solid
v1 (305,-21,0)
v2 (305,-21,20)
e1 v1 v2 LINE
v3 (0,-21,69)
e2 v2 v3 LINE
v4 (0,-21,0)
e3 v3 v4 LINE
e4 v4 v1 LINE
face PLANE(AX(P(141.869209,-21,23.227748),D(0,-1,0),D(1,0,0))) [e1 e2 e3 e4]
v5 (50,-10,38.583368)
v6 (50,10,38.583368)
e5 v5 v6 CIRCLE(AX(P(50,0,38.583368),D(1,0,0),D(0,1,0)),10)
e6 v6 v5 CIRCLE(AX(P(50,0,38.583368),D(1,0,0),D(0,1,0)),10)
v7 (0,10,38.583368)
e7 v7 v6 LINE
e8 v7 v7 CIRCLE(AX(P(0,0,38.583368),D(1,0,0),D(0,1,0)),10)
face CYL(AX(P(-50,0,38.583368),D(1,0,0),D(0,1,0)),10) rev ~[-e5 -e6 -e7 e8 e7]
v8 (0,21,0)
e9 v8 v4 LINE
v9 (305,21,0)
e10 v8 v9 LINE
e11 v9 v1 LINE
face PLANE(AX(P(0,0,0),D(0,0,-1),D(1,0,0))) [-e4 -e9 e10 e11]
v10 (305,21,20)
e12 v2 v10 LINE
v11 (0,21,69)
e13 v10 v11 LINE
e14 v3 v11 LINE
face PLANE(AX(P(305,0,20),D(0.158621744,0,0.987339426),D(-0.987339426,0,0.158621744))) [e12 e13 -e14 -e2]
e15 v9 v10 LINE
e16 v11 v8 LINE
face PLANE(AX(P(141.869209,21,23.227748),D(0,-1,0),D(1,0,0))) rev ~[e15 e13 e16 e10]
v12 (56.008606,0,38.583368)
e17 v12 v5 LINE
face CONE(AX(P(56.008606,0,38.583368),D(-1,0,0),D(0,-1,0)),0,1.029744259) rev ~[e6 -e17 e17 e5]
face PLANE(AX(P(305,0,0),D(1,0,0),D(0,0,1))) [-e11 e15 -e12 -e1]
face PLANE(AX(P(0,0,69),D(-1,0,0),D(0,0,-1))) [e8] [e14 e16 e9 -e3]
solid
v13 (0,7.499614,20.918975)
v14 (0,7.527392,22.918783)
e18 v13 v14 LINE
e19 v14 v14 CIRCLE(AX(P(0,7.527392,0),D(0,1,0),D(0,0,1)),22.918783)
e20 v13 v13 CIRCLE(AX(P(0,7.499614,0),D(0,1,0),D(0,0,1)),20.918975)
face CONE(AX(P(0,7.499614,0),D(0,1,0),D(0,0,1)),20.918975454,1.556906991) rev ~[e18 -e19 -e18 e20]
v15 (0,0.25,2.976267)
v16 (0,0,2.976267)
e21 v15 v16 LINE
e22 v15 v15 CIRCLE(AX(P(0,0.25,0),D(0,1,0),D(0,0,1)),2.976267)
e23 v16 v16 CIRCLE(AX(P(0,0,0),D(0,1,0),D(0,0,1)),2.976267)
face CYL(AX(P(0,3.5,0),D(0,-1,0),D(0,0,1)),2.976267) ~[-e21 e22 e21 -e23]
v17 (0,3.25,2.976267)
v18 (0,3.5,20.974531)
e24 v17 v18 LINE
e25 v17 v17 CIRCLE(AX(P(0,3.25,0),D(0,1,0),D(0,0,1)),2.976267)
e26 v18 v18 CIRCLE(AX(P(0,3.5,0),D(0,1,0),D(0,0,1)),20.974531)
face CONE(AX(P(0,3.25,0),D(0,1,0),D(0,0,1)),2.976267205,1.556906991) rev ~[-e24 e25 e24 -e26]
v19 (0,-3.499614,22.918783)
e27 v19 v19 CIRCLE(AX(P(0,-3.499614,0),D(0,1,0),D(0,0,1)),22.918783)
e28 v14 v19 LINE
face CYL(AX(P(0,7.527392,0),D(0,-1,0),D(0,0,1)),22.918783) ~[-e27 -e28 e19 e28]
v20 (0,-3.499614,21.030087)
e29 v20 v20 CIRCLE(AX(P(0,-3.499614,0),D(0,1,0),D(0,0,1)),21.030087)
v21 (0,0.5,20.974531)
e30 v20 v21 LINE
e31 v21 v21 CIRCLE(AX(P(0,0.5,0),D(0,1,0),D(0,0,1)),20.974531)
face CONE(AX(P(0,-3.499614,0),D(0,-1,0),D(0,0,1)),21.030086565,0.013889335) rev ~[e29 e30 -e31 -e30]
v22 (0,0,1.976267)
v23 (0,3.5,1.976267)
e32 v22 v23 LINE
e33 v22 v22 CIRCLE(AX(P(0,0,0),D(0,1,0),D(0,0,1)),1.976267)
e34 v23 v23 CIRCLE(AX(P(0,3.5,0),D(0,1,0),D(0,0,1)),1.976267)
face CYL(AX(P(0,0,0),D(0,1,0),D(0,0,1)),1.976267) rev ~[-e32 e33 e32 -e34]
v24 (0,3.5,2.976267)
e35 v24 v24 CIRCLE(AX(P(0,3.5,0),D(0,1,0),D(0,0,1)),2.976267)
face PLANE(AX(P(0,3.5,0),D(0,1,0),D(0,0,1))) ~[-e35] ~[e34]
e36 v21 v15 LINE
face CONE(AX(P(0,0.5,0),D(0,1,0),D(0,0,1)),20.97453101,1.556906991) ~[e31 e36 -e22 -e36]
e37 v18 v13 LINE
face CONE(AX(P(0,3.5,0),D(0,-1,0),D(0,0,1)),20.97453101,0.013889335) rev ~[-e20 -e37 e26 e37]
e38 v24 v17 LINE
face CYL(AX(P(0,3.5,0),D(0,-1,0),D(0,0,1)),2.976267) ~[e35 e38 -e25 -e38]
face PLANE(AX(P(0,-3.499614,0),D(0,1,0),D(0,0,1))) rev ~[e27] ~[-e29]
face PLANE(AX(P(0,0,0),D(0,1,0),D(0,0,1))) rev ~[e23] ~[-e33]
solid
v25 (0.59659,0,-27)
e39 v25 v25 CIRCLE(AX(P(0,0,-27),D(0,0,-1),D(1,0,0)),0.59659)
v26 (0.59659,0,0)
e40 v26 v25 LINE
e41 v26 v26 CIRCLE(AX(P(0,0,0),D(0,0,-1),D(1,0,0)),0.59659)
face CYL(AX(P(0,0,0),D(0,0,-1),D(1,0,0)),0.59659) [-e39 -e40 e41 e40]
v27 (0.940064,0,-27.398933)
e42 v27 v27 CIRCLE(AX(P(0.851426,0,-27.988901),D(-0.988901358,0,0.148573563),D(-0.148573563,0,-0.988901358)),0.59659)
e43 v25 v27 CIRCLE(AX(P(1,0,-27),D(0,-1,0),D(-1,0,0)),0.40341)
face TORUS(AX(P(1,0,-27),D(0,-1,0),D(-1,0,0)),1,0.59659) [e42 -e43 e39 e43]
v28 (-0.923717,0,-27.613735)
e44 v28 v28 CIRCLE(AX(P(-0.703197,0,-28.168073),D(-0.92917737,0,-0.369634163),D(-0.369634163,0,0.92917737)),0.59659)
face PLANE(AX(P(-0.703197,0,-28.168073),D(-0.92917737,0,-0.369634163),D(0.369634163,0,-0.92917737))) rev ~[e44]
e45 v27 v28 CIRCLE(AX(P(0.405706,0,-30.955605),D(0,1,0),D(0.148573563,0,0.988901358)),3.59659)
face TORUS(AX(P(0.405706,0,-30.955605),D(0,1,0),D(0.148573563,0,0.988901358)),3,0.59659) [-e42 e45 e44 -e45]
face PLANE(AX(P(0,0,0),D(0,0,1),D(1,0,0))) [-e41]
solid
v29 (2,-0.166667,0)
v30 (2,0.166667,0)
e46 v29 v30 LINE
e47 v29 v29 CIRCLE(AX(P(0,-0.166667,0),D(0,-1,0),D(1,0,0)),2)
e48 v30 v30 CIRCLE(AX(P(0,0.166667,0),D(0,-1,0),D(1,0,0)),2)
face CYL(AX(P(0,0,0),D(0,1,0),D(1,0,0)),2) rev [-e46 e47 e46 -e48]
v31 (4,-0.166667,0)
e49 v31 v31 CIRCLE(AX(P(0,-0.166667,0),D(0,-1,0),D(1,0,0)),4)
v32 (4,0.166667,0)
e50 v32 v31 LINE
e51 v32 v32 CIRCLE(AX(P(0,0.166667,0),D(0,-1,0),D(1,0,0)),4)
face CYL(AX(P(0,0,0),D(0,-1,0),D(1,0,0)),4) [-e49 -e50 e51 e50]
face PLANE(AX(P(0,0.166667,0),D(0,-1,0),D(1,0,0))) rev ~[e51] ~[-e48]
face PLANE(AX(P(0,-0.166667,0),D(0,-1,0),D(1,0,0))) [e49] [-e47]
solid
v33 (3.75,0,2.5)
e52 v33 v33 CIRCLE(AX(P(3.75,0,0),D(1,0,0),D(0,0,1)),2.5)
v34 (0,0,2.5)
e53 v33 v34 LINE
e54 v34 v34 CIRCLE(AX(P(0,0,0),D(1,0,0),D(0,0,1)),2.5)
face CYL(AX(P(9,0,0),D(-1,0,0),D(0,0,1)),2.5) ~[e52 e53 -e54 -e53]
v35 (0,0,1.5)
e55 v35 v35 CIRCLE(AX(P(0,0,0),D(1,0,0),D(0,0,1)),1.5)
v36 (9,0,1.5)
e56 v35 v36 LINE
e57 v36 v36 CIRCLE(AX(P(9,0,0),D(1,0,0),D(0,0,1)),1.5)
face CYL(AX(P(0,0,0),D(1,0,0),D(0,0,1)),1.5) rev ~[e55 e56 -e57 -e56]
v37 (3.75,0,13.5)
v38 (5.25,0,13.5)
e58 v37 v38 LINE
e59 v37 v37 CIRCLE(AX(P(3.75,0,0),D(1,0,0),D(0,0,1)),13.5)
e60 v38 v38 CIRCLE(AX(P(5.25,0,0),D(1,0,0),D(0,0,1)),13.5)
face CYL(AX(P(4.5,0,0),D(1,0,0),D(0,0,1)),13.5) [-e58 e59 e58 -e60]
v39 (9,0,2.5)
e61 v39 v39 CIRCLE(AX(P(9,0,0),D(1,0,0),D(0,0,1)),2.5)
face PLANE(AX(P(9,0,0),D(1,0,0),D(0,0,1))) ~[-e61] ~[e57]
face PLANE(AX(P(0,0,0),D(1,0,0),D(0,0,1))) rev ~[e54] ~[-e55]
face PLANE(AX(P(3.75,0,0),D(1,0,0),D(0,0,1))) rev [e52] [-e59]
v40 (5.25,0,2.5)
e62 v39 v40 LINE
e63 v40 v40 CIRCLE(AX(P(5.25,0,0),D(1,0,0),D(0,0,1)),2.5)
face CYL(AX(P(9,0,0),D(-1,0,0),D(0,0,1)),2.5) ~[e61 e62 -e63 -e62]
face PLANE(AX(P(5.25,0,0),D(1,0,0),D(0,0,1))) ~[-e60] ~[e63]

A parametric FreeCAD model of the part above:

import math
import FreeCAD as App
import Part
import Sketcher

V = App.Vector
Q = App.Units.Quantity

doc = App.newDocument("Part")
body = doc.addObject("PartDesign::Body", "Body")

# Sketch on XZ plane
sketch1 = body.newObject("Sketcher::SketchObject", "Sketch")
sketch1.AttachmentSupport = (doc.getObject("XZ_Plane"), [""])
sketch1.MapMode = "FlatFace"
sketch1.addGeometry(Part.LineSegment(V(0, 69, 0), V(0, 0, 0)), False)
sketch1.addGeometry(Part.LineSegment(V(0, 0, 0), V(305, 0, 0)), False)
sketch1.addGeometry(Part.LineSegment(V(305, 0, 0), V(305, 20, 0)), False)
sketch1.addGeometry(Part.LineSegment(V(305, 20, 0), V(0, 69, 0)), False)
sketch1.addConstraint(Sketcher.Constraint("Coincident", 0, 2, 1, 1))
sketch1.addConstraint(Sketcher.Constraint("Coincident", 1, 2, 2, 1))
sketch1.addConstraint(Sketcher.Constraint("Coincident", 2, 2, 3, 1))
sketch1.addConstraint(Sketcher.Constraint("Coincident", 3, 2, 0, 1))
sketch1.addConstraint(Sketcher.Constraint("Vertical", 0))
sketch1.addConstraint(Sketcher.Constraint("Horizontal", 1))
sketch1.addConstraint(Sketcher.Constraint("Vertical", 2))
sketch1.addConstraint(Sketcher.Constraint("Coincident", 0, 2, -1, 1))
sketch1.addConstraint(Sketcher.Constraint("DistanceX", 1, 1, 1, 2, Q("305 mm")))
sketch1.addConstraint(Sketcher.Constraint("DistanceY", 0, 2, 0, 1, Q("69 mm")))
sketch1.addConstraint(Sketcher.Constraint("DistanceY", 2, 1, 2, 2, Q("20 mm")))
pad1 = body.newObject("PartDesign::Pad", "Pad")
pad1.Profile = sketch1
pad1.Length = 42
pad1.Midplane = True

# Sketch on YZ plane
sketch2 = body.newObject("Sketcher::SketchObject", "Sketch001")
sketch2.AttachmentSupport = (doc.getObject("YZ_Plane"), [""])
sketch2.MapMode = "FlatFace"
sketch2.addGeometry(Part.Circle(V(0, 38.583368, 0), V(0, 0, 1), 10), False)
sketch2.addConstraint(Sketcher.Constraint("PointOnObject", 0, 3, -2))
sketch2.addConstraint(Sketcher.Constraint("Diameter", 0, Q("20 mm")))
sketch2.addConstraint(Sketcher.Constraint("DistanceY", -1, 1, 0, 3, Q("38.583368 mm")))
doc.recompute()
hole = body.newObject("PartDesign::Hole", "Hole")
hole.Profile = sketch2
hole.ThreadType = "None"
hole.Diameter = 20
hole.DepthType = "Dimension"
hole.Depth = 50
hole.DrillPoint = "Angled"
hole.DrillPointAngle = 118
hole.Reversed = True
body2 = doc.addObject("PartDesign::Body", "Body001")

# Sketch on XZ plane
sketch3 = body2.newObject("Sketcher::SketchObject", "Sketch002")
sketch3.AttachmentSupport = (doc.getObject("XZ_Plane001"), [""])
sketch3.MapMode = "FlatFace"
sketch3.addGeometry(Part.Circle(V(0, 0, 0), V(0, 0, 1), 4), False)
sketch3.addGeometry(Part.Circle(V(0, 0, 0), V(0, 0, 1), 2), False)
sketch3.addConstraint(Sketcher.Constraint("Coincident", 0, 3, -1, 1))
sketch3.addConstraint(Sketcher.Constraint("Coincident", 1, 3, -1, 1))
sketch3.addConstraint(Sketcher.Constraint("Diameter", 0, Q("8 mm")))
sketch3.addConstraint(Sketcher.Constraint("Diameter", 1, Q("4 mm")))
pad2 = body2.newObject("PartDesign::Pad", "Pad001")
pad2.Profile = sketch3
pad2.Length = 0.333333
pad2.Midplane = True
body3 = doc.addObject("PartDesign::Body", "Body002")

# Sketch on YZ plane
sketch4 = body3.newObject("Sketcher::SketchObject", "Sketch003")
sketch4.AttachmentSupport = (doc.getObject("YZ_Plane002"), [""])
sketch4.MapMode = "FlatFace"
sketch4.addGeometry(Part.LineSegment(V(0, 2.976267, 0), V(0, 1.976267, 0)), False)
sketch4.addGeometry(Part.LineSegment(V(0, 1.976267, 0), V(3.5, 1.976267, 0)), False)
sketch4.addGeometry(Part.LineSegment(V(3.5, 1.976267, 0), V(3.5, 2.976267, 0)), False)
sketch4.addGeometry(Part.LineSegment(V(3.5, 2.976267, 0), V(3.25, 2.976267, 0)), False)
sketch4.addGeometry(Part.LineSegment(V(3.25, 2.976267, 0), V(3.5, 20.974531, 0)), False)
sketch4.addGeometry(Part.LineSegment(V(3.5, 20.974531, 0), V(7.499614, 20.918975, 0)), False)
sketch4.addGeometry(Part.LineSegment(V(7.499614, 20.918975, 0), V(7.527392, 22.918783, 0)), False)
sketch4.addGeometry(Part.LineSegment(V(7.527392, 22.918783, 0), V(-3.499614, 22.918783, 0)), False)
sketch4.addGeometry(Part.LineSegment(V(-3.499614, 22.918783, 0), V(-3.499614, 21.030087, 0)), False)
sketch4.addGeometry(Part.LineSegment(V(-3.499614, 21.030087, 0), V(0.5, 20.974531, 0)), False)
sketch4.addGeometry(Part.LineSegment(V(0.5, 20.974531, 0), V(0.25, 2.976267, 0)), False)
sketch4.addGeometry(Part.LineSegment(V(0.25, 2.976267, 0), V(0, 2.976267, 0)), False)
sketch4.addConstraint(Sketcher.Constraint("Coincident", 0, 2, 1, 1))
sketch4.addConstraint(Sketcher.Constraint("Coincident", 1, 2, 2, 1))
sketch4.addConstraint(Sketcher.Constraint("Coincident", 2, 2, 3, 1))
sketch4.addConstraint(Sketcher.Constraint("Coincident", 3, 2, 4, 1))
sketch4.addConstraint(Sketcher.Constraint("Coincident", 4, 2, 5, 1))
sketch4.addConstraint(Sketcher.Constraint("Coincident", 5, 2, 6, 1))
sketch4.addConstraint(Sketcher.Constraint("Coincident", 6, 2, 7, 1))
sketch4.addConstraint(Sketcher.Constraint("Coincident", 7, 2, 8, 1))
sketch4.addConstraint(Sketcher.Constraint("Coincident", 8, 2, 9, 1))
sketch4.addConstraint(Sketcher.Constraint("Coincident", 9, 2, 10, 1))
sketch4.addConstraint(Sketcher.Constraint("Coincident", 10, 2, 11, 1))
sketch4.addConstraint(Sketcher.Constraint("Coincident", 11, 2, 0, 1))
sketch4.addConstraint(Sketcher.Constraint("Vertical", 0))
sketch4.addConstraint(Sketcher.Constraint("Horizontal", 1))
sketch4.addConstraint(Sketcher.Constraint("Vertical", 2))
sketch4.addConstraint(Sketcher.Constraint("Horizontal", 3))
sketch4.addConstraint(Sketcher.Constraint("Horizontal", 7))
sketch4.addConstraint(Sketcher.Constraint("Vertical", 8))
sketch4.addConstraint(Sketcher.Constraint("Horizontal", 11))
sketch4.addConstraint(Sketcher.Constraint("PointOnObject", 0, 2, -2))
sketch4.addConstraint(Sketcher.Constraint("Perpendicular", 4, 5))
sketch4.addConstraint(Sketcher.Constraint("Perpendicular", 5, 6))
sketch4.addConstraint(Sketcher.Constraint("Perpendicular", 6, 9))
sketch4.addConstraint(Sketcher.Constraint("Perpendicular", 9, 10))
sketch4.addConstraint(Sketcher.Constraint("Horizontal", 4, 2, 9, 2))
sketch4.addConstraint(Sketcher.Constraint("Horizontal", 3, 2, 10, 2))
sketch4.addConstraint(Sketcher.Constraint("Vertical", 2, 2, 4, 2))
sketch4.addConstraint(Sketcher.Constraint("Equal", 3, 11))
sketch4.addConstraint(Sketcher.Constraint("Equal", 5, 9))
sketch4.addConstraint(Sketcher.Constraint("DistanceY", 0, 2, 0, 1, Q("1 mm")))
sketch4.addConstraint(Sketcher.Constraint("Distance", 4, Q("18 mm")))
sketch4.addConstraint(Sketcher.Constraint("Distance", 5, Q("4 mm")))
sketch4.addConstraint(Sketcher.Constraint("Distance", 6, Q("2 mm")))
sketch4.addConstraint(Sketcher.Constraint("DistanceX", 1, 1, 1, 2, Q("3.5 mm")))
sketch4.addConstraint(Sketcher.Constraint("DistanceX", 9, 2, 4, 2, Q("3 mm")))
sketch4.addConstraint(Sketcher.Constraint("DistanceY", -1, 1, 4, 2, Q("20.974531 mm")))
revolution = body3.newObject("PartDesign::Revolution", "Revolution")
revolution.Profile = sketch4
revolution.ReferenceAxis = (sketch4, ["H_Axis"])
revolution.Angle = 360
body4 = doc.addObject("PartDesign::Body", "Body003")

# Sketch on XY plane
sketch5 = body4.newObject("Sketcher::SketchObject", "Sketch004")
sketch5.AttachmentSupport = (doc.getObject("XY_Plane003"), [""])
sketch5.MapMode = "FlatFace"
sketch5.addGeometry(Part.Circle(V(0, 0, 0), V(0, 0, 1), 0.59659), False)
sketch5.addConstraint(Sketcher.Constraint("Coincident", 0, 3, -1, 1))
sketch5.addConstraint(Sketcher.Constraint("Diameter", 0, Q("1.19318 mm")))

# Sketch on XZ plane
sketch6 = body4.newObject("Sketcher::SketchObject", "Sketch005")
sketch6.AttachmentSupport = (doc.getObject("XZ_Plane003"), [""])
sketch6.MapMode = "FlatFace"
sketch6.addGeometry(Part.LineSegment(V(0, 0, 0), V(0, -27, 0)), False)
sketch6.addGeometry(Part.ArcOfCircle(Part.Circle(V(1, -27, 0), V(0, 0, 1), 1), math.radians(180), math.radians(261.455729)), False)
sketch6.addGeometry(Part.ArcOfCircle(Part.Circle(V(0.405706, -30.955605, 0), V(0, 0, 1), 3), math.radians(111.693057), math.radians(441.455728)), False)
sketch6.addConstraint(Sketcher.Constraint("Tangent", 0, 2, 1, 1))
sketch6.addConstraint(Sketcher.Constraint("Tangent", 1, 2, 2, 2))
sketch6.addConstraint(Sketcher.Constraint("Vertical", 0))
sketch6.addConstraint(Sketcher.Constraint("Coincident", 0, 1, -1, 1))
sketch6.addConstraint(Sketcher.Constraint("Radius", 1, Q("1 mm")))
sketch6.addConstraint(Sketcher.Constraint("Radius", 2, Q("3 mm")))
sketch6.addConstraint(Sketcher.Constraint("DistanceY", 0, 2, 0, 1, Q("27 mm")))
sketch6.addConstraint(Sketcher.Constraint("DistanceY", 1, 2, -1, 1, Q("27.988901 mm")))
sketch6.addConstraint(Sketcher.Constraint("DistanceY", 2, 1, 1, 2, Q("0.179172 mm")))
doc.recompute()

additivepipe = body4.newObject("PartDesign::AdditivePipe", "AdditivePipe")
additivepipe.Profile = sketch5
additivepipe.Spine = (sketch6, ["Edge1", "Edge2", "Edge3"])
body5 = doc.addObject("PartDesign::Body", "Body004")

# Sketch on XZ plane
sketch7 = body5.newObject("Sketcher::SketchObject", "Sketch006")
sketch7.AttachmentSupport = (doc.getObject("XZ_Plane004"), [""])
sketch7.MapMode = "FlatFace"
sketch7.addGeometry(Part.LineSegment(V(0, 2.5, 0), V(0, 1.5, 0)), False)
sketch7.addGeometry(Part.LineSegment(V(0, 1.5, 0), V(9, 1.5, 0)), False)
sketch7.addGeometry(Part.LineSegment(V(9, 1.5, 0), V(9, 2.5, 0)), False)
sketch7.addGeometry(Part.LineSegment(V(9, 2.5, 0), V(5.25, 2.5, 0)), False)
sketch7.addGeometry(Part.LineSegment(V(5.25, 2.5, 0), V(5.25, 13.5, 0)), False)
sketch7.addGeometry(Part.LineSegment(V(5.25, 13.5, 0), V(3.75, 13.5, 0)), False)
sketch7.addGeometry(Part.LineSegment(V(3.75, 13.5, 0), V(3.75, 2.5, 0)), False)
sketch7.addGeometry(Part.LineSegment(V(3.75, 2.5, 0), V(0, 2.5, 0)), False)
sketch7.addConstraint(Sketcher.Constraint("Coincident", 0, 2, 1, 1))
sketch7.addConstraint(Sketcher.Constraint("Coincident", 1, 2, 2, 1))
sketch7.addConstraint(Sketcher.Constraint("Coincident", 2, 2, 3, 1))
sketch7.addConstraint(Sketcher.Constraint("Coincident", 3, 2, 4, 1))
sketch7.addConstraint(Sketcher.Constraint("Coincident", 4, 2, 5, 1))
sketch7.addConstraint(Sketcher.Constraint("Coincident", 5, 2, 6, 1))
sketch7.addConstraint(Sketcher.Constraint("Coincident", 6, 2, 7, 1))
sketch7.addConstraint(Sketcher.Constraint("Coincident", 7, 2, 0, 1))
sketch7.addConstraint(Sketcher.Constraint("Vertical", 0))
sketch7.addConstraint(Sketcher.Constraint("Horizontal", 1))
sketch7.addConstraint(Sketcher.Constraint("Vertical", 2))
sketch7.addConstraint(Sketcher.Constraint("Horizontal", 3))
sketch7.addConstraint(Sketcher.Constraint("Vertical", 4))
sketch7.addConstraint(Sketcher.Constraint("Horizontal", 5))
sketch7.addConstraint(Sketcher.Constraint("Vertical", 6))
sketch7.addConstraint(Sketcher.Constraint("Horizontal", 7))
sketch7.addConstraint(Sketcher.Constraint("PointOnObject", 0, 2, -2))
sketch7.addConstraint(Sketcher.Constraint("Horizontal", 3, 2, 6, 2))
sketch7.addConstraint(Sketcher.Constraint("Equal", 3, 7))
sketch7.addConstraint(Sketcher.Constraint("DistanceX", 1, 1, 1, 2, Q("9 mm")))
sketch7.addConstraint(Sketcher.Constraint("DistanceY", 0, 2, 0, 1, Q("1 mm")))
sketch7.addConstraint(Sketcher.Constraint("DistanceY", 4, 1, 4, 2, Q("11 mm")))
sketch7.addConstraint(Sketcher.Constraint("DistanceX", 5, 2, 5, 1, Q("1.5 mm")))
sketch7.addConstraint(Sketcher.Constraint("DistanceY", -1, 1, 0, 2, Q("1.5 mm")))
revolution2 = body5.newObject("PartDesign::Revolution", "Revolution001")
revolution2.Profile = sketch7
revolution2.ReferenceAxis = (sketch7, ["H_Axis"])
revolution2.Angle = 360

doc.recompute()
